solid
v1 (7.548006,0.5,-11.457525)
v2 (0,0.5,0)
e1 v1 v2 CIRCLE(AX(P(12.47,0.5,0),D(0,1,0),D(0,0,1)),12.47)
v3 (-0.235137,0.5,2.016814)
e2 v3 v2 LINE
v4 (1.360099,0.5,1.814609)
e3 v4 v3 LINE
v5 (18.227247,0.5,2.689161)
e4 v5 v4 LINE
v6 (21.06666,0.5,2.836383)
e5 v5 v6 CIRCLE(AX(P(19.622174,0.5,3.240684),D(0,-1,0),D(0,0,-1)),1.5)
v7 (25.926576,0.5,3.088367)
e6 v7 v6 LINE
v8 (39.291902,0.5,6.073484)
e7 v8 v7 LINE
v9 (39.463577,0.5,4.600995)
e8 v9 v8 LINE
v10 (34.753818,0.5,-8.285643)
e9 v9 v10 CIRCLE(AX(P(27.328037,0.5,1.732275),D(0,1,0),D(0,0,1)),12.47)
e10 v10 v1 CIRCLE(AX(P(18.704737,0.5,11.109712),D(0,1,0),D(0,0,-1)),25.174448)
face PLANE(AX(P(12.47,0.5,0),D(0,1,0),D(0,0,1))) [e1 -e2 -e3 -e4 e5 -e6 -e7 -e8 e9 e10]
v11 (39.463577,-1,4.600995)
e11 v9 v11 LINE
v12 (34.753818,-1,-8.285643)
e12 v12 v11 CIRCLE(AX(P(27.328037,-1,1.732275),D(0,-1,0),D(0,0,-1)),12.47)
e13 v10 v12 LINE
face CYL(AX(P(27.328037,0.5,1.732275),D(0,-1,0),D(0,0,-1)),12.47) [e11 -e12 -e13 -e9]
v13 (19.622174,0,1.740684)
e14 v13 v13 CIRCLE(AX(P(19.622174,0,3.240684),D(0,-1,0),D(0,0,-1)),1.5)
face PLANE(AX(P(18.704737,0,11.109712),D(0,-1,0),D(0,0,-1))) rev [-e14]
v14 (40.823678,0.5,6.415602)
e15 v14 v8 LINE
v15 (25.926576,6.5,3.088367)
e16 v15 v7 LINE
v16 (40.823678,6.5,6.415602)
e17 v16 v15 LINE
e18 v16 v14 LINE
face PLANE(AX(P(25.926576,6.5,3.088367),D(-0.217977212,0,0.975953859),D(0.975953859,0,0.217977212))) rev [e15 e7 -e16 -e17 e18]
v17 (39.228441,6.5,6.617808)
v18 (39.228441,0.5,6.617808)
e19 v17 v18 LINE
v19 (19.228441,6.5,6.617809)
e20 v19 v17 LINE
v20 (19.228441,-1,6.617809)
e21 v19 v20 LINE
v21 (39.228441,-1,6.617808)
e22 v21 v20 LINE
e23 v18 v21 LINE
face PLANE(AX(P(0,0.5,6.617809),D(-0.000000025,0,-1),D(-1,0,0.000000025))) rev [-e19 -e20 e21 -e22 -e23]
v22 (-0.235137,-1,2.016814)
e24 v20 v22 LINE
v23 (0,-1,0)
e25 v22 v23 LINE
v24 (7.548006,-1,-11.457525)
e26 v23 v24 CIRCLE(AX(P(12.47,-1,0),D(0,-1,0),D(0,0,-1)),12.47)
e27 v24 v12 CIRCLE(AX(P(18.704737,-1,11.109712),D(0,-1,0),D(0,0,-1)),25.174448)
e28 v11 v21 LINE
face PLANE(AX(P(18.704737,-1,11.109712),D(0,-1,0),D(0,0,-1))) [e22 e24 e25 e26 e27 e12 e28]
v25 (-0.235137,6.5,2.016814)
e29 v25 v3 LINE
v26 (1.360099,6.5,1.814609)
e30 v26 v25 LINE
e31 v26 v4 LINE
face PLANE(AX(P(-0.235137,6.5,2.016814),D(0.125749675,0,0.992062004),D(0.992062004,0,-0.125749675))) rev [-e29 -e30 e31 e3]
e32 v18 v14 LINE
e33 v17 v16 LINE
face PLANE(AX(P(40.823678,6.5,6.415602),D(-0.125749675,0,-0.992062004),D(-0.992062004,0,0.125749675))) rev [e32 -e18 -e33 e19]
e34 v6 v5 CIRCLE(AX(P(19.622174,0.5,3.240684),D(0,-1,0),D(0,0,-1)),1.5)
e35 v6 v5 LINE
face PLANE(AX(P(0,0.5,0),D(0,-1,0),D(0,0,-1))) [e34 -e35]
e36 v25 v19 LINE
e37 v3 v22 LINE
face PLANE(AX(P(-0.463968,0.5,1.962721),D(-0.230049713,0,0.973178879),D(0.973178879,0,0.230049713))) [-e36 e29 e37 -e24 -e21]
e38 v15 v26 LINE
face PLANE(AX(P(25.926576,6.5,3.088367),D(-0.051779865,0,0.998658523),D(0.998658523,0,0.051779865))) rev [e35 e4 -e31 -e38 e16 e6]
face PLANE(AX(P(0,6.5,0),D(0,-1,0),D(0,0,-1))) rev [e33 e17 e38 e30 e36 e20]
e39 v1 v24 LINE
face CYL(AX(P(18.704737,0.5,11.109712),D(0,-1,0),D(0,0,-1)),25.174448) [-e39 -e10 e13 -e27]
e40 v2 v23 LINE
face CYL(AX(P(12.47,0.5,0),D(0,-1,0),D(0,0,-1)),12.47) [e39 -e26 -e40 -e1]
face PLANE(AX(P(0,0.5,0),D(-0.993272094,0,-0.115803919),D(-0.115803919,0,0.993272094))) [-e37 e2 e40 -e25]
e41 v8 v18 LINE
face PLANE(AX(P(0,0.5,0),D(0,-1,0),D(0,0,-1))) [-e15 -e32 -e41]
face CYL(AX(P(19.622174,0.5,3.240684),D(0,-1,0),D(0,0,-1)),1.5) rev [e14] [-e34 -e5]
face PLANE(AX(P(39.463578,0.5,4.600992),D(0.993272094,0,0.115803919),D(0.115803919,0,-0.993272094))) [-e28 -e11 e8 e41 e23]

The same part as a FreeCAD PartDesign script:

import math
import FreeCAD as App
import Part
import Sketcher

V = App.Vector
Q = App.Units.Quantity


def add_polygon(sketch, points):
    """Adds a closed chain of lines whose ends are joined by coincident constraints."""
    first, n = sketch.GeometryCount, len(points)
    for a, b in zip(points, points[1:] + points[:1]):
        sketch.addGeometry(Part.LineSegment(App.Vector(*a, 0), App.Vector(*b, 0)), False)
    for i in range(n):
        sketch.addConstraint(Sketcher.Constraint("Coincident", first + i, 2, first + (i + 1) % n, 1))

doc = App.newDocument("Part")
params = doc.addObject("Spreadsheet::Sheet", "Params")
for row, (alias, value) in enumerate([
    ("sketch1_width", "20 mm"),
    ("sketch1_radius", "12.47 mm"),
    ("sketch1_radius2", "12.47 mm"),
    ("sketch1_length", "20 mm"),
    ("pad1_length", "0.5 mm"),
    ("sketch2_radius", "4.5 mm"),
    ("sketch2_width", "3.5 mm"),
    ("sketch2_length", "3.5 mm"),
    ("pocket1_length", "0.5 mm"),
    ("sketch3_diameter", "3 mm"),
    ("sketch3_width", "20 mm"),
    ("sketch3_length", "20 mm"),
    ("pad2_length", "0.5 mm"),
    ("sketch4_width", "20 mm"),
    ("sketch4_length", "20 mm"),
    ("pad3_length", "6 mm"),
    ("sketch5_width", "20 mm"),
    ("sketch5_radius", "12.47 mm"),
    ("sketch5_radius2", "12.47 mm"),
    ("sketch5_length", "20 mm"),
    ("pad4_length", "1 mm"),
], start=1):
    params.set(f"A{row}", alias)
    params.set(f"B{row}", "=" + value)
    params.setAlias(f"B{row}", alias)

body = doc.addObject("PartDesign::Body", "Body")

sketch1 = doc.addObject("Sketcher::SketchObject", "Sketch")
body.addObject(sketch1)
sketch1.AttachmentSupport = (doc.XZ_Plane, [""])
sketch1.MapMode = "FlatFace"
sketch1.addGeometry([
    Part.LineSegment(V(0, 0, 0), V(20, 0, 0)),
    Part.LineSegment(V(20, 0, 0), V(39.463577, 4.600995, 0)),
    Part.ArcOfCircle(Part.Circle(V(27.328037, 1.732275, 0), V(0, 0, 1), 12.47), math.radians(-53.452307), math.radians(13.3)),
    Part.ArcOfCircle(Part.Circle(V(18.704737, 11.109712, 0), V(0, 0, 1), 25.174448), math.radians(-116.30675), math.radians(-50.39325)),
    Part.ArcOfCircle(Part.Circle(V(12.47, 0, 0), V(0, 0, 1), 12.47), math.radians(-180), math.radians(-113.247693)),
], False)
sketch1.addConstraint([
    Sketcher.Constraint("Coincident", 0, 2, 1, 1),
    Sketcher.Constraint("Coincident", 1, 2, 2, 2),
    Sketcher.Constraint("Coincident", 2, 1, 3, 2),
    Sketcher.Constraint("Coincident", 3, 1, 4, 2),
    Sketcher.Constraint("Coincident", 4, 1, 0, 1),
    Sketcher.Constraint("Horizontal", 0),
    Sketcher.Constraint("Coincident", 4, 1, -1, 1),
    Sketcher.Constraint("PointOnObject", 4, 3, -1),
    Sketcher.Constraint("DistanceX", 0, 1, 0, 2, Q("20 mm")),
    Sketcher.Constraint("Radius", 2, Q("12.47 mm")),
    Sketcher.Constraint("Radius", 4, Q("12.47 mm")),
    Sketcher.Constraint("Distance", 1, Q("20 mm")),
    Sketcher.Constraint("Radius", 3, Q("25.174448 mm")),
    Sketcher.Constraint("DistanceX", 3, 3, 2, 3, Q("8.6233 mm")),
    Sketcher.Constraint("DistanceY", 3, 1, 2, 3, Q("13.189799 mm")),
    Sketcher.Constraint("DistanceY", -1, 1, 3, 3, Q("11.109712 mm")),
    Sketcher.Constraint("DistanceX", 2, 3, 1, 2, Q("12.135541 mm")),
])
sketch1.setExpression("Constraints[8]", "Params.sketch1_width")
sketch1.setExpression("Constraints[9]", "Params.sketch1_radius")
sketch1.setExpression("Constraints[10]", "Params.sketch1_radius2")
sketch1.setExpression("Constraints[11]", "Params.sketch1_length")
pad1 = doc.addObject("PartDesign::Pad", "Pad")
body.addObject(pad1)
pad1.Profile = sketch1
pad1.setExpression("Length", "Params.pad1_length")
pad1.Reversed = True

sketch2 = doc.addObject("Sketcher::SketchObject", "Sketch001")
body.addObject(sketch2)
sketch2.AttachmentSupport = (doc.XZ_Plane, [""])
sketch2.MapMode = "FlatFace"
sketch2.AttachmentOffset = App.Placement(V(0, 0, -0.5), App.Rotation())
sketch2.addGeometry([
    Part.LineSegment(V(16.5, 0, 0), V(20, 0, 0)),
    Part.LineSegment(V(20, 0, 0), V(23.4, 0.8, 0)),
    Part.ArcOfCircle(Part.Circle(V(19.6, 3.2, 0), V(0, 0, 1), 4.5), math.radians(-134), math.radians(-33)),
], False)
sketch2.addConstraint([
    Sketcher.Constraint("Coincident", 0, 2, 1, 1),
    Sketcher.Constraint("Coincident", 1, 2, 2, 2),
    Sketcher.Constraint("Coincident", 2, 1, 0, 1),
    Sketcher.Constraint("Horizontal", 0),
    Sketcher.Constraint("PointOnObject", 0, 2, -1),
    Sketcher.Constraint("Radius", 2, Q("4.5 mm")),
    Sketcher.Constraint("DistanceX", 0, 1, 0, 2, Q("3.5 mm")),
    Sketcher.Constraint("DistanceX", -1, 1, 0, 2, Q("20 mm")),
    Sketcher.Constraint("Angle", 1, Q("13.3 deg")),
    Sketcher.Constraint("Distance", 1, Q("3.5 mm")),
])
sketch2.setExpression("Constraints[5]", "Params.sketch2_radius")
sketch2.setExpression("Constraints[6]", "Params.sketch2_width")
sketch2.setExpression("Constraints[9]", "Params.sketch2_length")
pocket1 = doc.addObject("PartDesign::Pocket", "Pocket")
body.addObject(pocket1)
pocket1.Profile = sketch2
pocket1.setExpression("Length", "Params.pocket1_length")
pocket1.Reversed = True

sketch3 = doc.addObject("Sketcher::SketchObject", "Sketch002")
body.addObject(sketch3)
sketch3.AttachmentSupport = (doc.XZ_Plane, [""])
sketch3.MapMode = "FlatFace"
add_polygon(sketch3, [(19.2, 6.6), (-0.2, 2), (0, 0), (19.6, -4.1), (39.5, 4.6), (39.2, 6.6)])
sketch3.addGeometry(Part.Circle(V(19.6, 3.2, 0), V(0, 0, 1), 1.5), False)
sketch3.addConstraint([
    Sketcher.Constraint("Horizontal", 5),
    Sketcher.Constraint("Coincident", 1, 2, -1, 1),
    Sketcher.Constraint("Parallel", 1, 4),
    Sketcher.Constraint("Vertical", 6, 3, 2, 2),
    Sketcher.Constraint("Equal", 1, 4),
    Sketcher.Constraint("Diameter", 6, Q("3 mm")),
    Sketcher.Constraint("DistanceX", 5, 2, 5, 1, Q("20 mm")),
    Sketcher.Constraint("Distance", 0, Q("20 mm")),
    Sketcher.Constraint("Angle", 0, Q("-166.700001 deg")),
    Sketcher.Constraint("Angle", 1, Q("-83.350004 deg")),
    Sketcher.Constraint("DistanceX", -1, 1, 4, 2, Q("39.228441 mm")),
    Sketcher.Constraint("DistanceX", 0, 2, 6, 3, Q("19.857311 mm")),
    Sketcher.Constraint("DistanceY", 0, 2, 6, 3, Q("1.223869 mm")),
    Sketcher.Constraint("DistanceY", 2, 2, 0, 2, Q("6.141659 mm")),
])
sketch3.setExpression("Constraints[11]", "Params.sketch3_diameter")
sketch3.setExpression("Constraints[12]", "Params.sketch3_width")
sketch3.setExpression("Constraints[13]", "Params.sketch3_length")
pad2 = doc.addObject("PartDesign::Pad", "Pad001")
body.addObject(pad2)
pad2.Profile = sketch3
pad2.setExpression("Length", "Params.pad2_length")
pad2.Reversed = True

sketch4 = doc.addObject("Sketcher::SketchObject", "Sketch003")
body.addObject(sketch4)
sketch4.AttachmentSupport = (doc.XZ_Plane, [""])
sketch4.MapMode = "FlatFace"
sketch4.AttachmentOffset = App.Placement(V(0, 0, -0.5), App.Rotation())
add_polygon(sketch4, [(25.9, 3.1), (1.4, 1.8), (-0.2, 2), (19.2, 6.6), (39.2, 6.6), (40.8, 6.4)])
sketch4.addConstraint([
    Sketcher.Constraint("Horizontal", 3),
    Sketcher.Constraint("Parallel", 1, 4),
    Sketcher.Constraint("Equal", 1, 4),
    Sketcher.Constraint("DistanceX", 3, 1, 3, 2, Q("20 mm")),
    Sketcher.Constraint("Distance", 2, Q("20 mm")),
    Sketcher.Constraint("Angle", 2, Q("13.299998 deg")),
    Sketcher.Constraint("Distance", 1, Q("1.608 mm")),
    Sketcher.Constraint("DistanceX", -1, 1, 0, 2, Q("1.360099 mm")),
    Sketcher.Constraint("DistanceY", 0, 2, 2, 2, Q("4.8032 mm")),
    Sketcher.Constraint("DistanceX", 5, 2, 4, 2, Q("14.897102 mm")),
    Sketcher.Constraint("DistanceY", -1, 1, 0, 2, Q("1.814609 mm")),
    Sketcher.Constraint("DistanceY", 5, 2, 3, 2, Q("3.529442 mm")),
])
sketch4.setExpression("Constraints[9]", "Params.sketch4_width")
sketch4.setExpression("Constraints[10]", "Params.sketch4_length")
pad3 = doc.addObject("PartDesign::Pad", "Pad002")
body.addObject(pad3)
pad3.Profile = sketch4
pad3.setExpression("Length", "Params.pad3_length")
pad3.Reversed = True

sketch5 = doc.addObject("Sketcher::SketchObject", "Sketch004")
body.addObject(sketch5)
sketch5.AttachmentSupport = (doc.XZ_Plane, [""])
sketch5.MapMode = "FlatFace"
sketch5.addGeometry([
    Part.LineSegment(V(39.463577, 4.600995, 0), V(39.228441, 6.617808, 0)),
    Part.LineSegment(V(39.228441, 6.617808, 0), V(19.228441, 6.617809, 0)),
    Part.LineSegment(V(19.228441, 6.617809, 0), V(-0.235137, 2.016814, 0)),
    Part.LineSegment(V(-0.235137, 2.016814, 0), V(0, 0, 0)),
    Part.ArcOfCircle(Part.Circle(V(12.47, 0, 0), V(0, 0, 1), 12.47), math.radians(-180), math.radians(-113.247693)),
    Part.ArcOfCircle(Part.Circle(V(18.704737, 11.109712, 0), V(0, 0, 1), 25.174448), math.radians(-116.30675), math.radians(-50.39325)),
    Part.ArcOfCircle(Part.Circle(V(27.328037, 1.732275, 0), V(0, 0, 1), 12.47), math.radians(-53.452307), math.radians(13.3)),
], False)
sketch5.addConstraint([
    Sketcher.Constraint("Coincident", 0, 2, 1, 1),
    Sketcher.Constraint("Coincident", 1, 2, 2, 1),
    Sketcher.Constraint("Coincident", 2, 2, 3, 1),
    Sketcher.Constraint("Coincident", 3, 2, 4, 1),
    Sketcher.Constraint("Coincident", 4, 2, 5, 1),
    Sketcher.Constraint("Coincident", 5, 2, 6, 1),
    Sketcher.Constraint("Coincident", 6, 2, 0, 1),
    Sketcher.Constraint("Horizontal", 1),
    Sketcher.Constraint("Coincident", 3, 2, -1, 1),
    Sketcher.Constraint("PointOnObject", 4, 3, -1),
    Sketcher.Constraint("DistanceX", 1, 2, 1, 1, Q("20 mm")),
    Sketcher.Constraint("Radius", 4, Q("12.47 mm")),
    Sketcher.Constraint("Radius", 6, Q("12.47 mm")),
    Sketcher.Constraint("Distance", 2, Q("20 mm")),
    Sketcher.Constraint("Radius", 5, Q("25.174448 mm")),
    Sketcher.Constraint("DistanceX", 5, 3, 6, 3, Q("8.6233 mm")),
    Sketcher.Constraint("DistanceY", 4, 2, 6, 3, Q("13.189799 mm")),
    Sketcher.Constraint("DistanceY", -1, 1, 5, 3, Q("11.109712 mm")),
    Sketcher.Constraint("DistanceX", -1, 1, 0, 2, Q("39.228441 mm")),
    Sketcher.Constraint("DistanceY", -1, 1, 0, 2, Q("6.617808 mm")),
    Sketcher.Constraint("DistanceX", -1, 1, 5, 2, Q("34.753818 mm")),
    Sketcher.Constraint("DistanceY", 6, 3, 2, 2, Q("0.28454 mm")),
    Sketcher.Constraint("DistanceX", 6, 3, 6, 2, Q("12.135541 mm")),
])
sketch5.setExpression("Constraints[10]", "Params.sketch5_width")
sketch5.setExpression("Constraints[11]", "Params.sketch5_radius")
sketch5.setExpression("Constraints[12]", "Params.sketch5_radius2")
sketch5.setExpression("Constraints[13]", "Params.sketch5_length")
pad4 = doc.addObject("PartDesign::Pad", "Pad003")
body.addObject(pad4)
pad4.Profile = sketch5
pad4.setExpression("Length", "Params.pad4_length")

doc.recompute()
